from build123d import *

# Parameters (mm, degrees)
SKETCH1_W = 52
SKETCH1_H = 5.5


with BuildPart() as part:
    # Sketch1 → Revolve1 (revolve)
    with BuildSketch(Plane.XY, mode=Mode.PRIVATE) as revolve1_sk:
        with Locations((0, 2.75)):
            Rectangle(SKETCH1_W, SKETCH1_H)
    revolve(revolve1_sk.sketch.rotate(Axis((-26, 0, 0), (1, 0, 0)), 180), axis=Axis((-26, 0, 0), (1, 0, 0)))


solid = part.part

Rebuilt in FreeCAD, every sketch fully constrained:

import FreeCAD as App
import Part
import Sketcher

V = App.Vector

doc = App.newDocument("Part")
params = doc.addObject("Spreadsheet::Sheet", "Params")
for row, (alias, value) in enumerate([
    ("sketch1_width", "52 mm"),
    ("sketch1_height", "5.5 mm"),
    ("revolution_angle", "360 deg"),
], start=1):
    params.set(f"A{row}", alias)
    params.set(f"B{row}", "=" + value)
    params.setAlias(f"B{row}", alias)

body = doc.addObject("PartDesign::Body", "Body")

# Sketch on XY plane
sketch1 = doc.addObject("Sketcher::SketchObject", "Sketch")
body.addObject(sketch1)
sketch1.AttachmentSupport = (doc.XY_Plane, [""])
sketch1.MapMode = "FlatFace"
sketch1.addGeometry(Part.LineSegment(V(-26, 6, 0), V(-26, 0, 0)), False)
sketch1.addGeometry(Part.LineSegment(V(-26, 0, 0), V(26, 0, 0)), False)
sketch1.addGeometry(Part.LineSegment(V(26, 0, 0), V(26, 6, 0)), False)
sketch1.addGeometry(Part.LineSegment(V(26, 6, 0), V(-26, 6, 0)), False)
sketch1.addConstraint(Sketcher.Constraint("Coincident", 0, 2, 1, 1))
sketch1.addConstraint(Sketcher.Constraint("Coincident", 1, 2, 2, 1))
sketch1.addConstraint(Sketcher.Constraint("Coincident", 2, 2, 3, 1))
sketch1.addConstraint(Sketcher.Constraint("Coincident", 3, 2, 0, 1))
sketch1.addConstraint(Sketcher.Constraint("Vertical", 0))
sketch1.addConstraint(Sketcher.Constraint("Horizontal", 1))
sketch1.addConstraint(Sketcher.Constraint("Vertical", 2))
sketch1.addConstraint(Sketcher.Constraint("Horizontal", 3))
sketch1.addConstraint(Sketcher.Constraint("Symmetric", 0, 2, 1, 2, -1, 1))
sketch1.addConstraint(Sketcher.Constraint("DistanceX", 1, 1, 1, 2, 52.0))
sketch1.addConstraint(Sketcher.Constraint("DistanceY", 0, 2, 0, 1, 5.5))
sketch1.setExpression("Constraints[9]", "Params.sketch1_width")
sketch1.setExpression("Constraints[10]", "Params.sketch1_height")
revolution = doc.addObject("PartDesign::Revolution", "Revolution")
body.addObject(revolution)
revolution.Profile = sketch1
revolution.ReferenceAxis = (sketch1, ["H_Axis"])
revolution.setExpression("Angle", "Params.revolution_angle")

doc.recompute()
